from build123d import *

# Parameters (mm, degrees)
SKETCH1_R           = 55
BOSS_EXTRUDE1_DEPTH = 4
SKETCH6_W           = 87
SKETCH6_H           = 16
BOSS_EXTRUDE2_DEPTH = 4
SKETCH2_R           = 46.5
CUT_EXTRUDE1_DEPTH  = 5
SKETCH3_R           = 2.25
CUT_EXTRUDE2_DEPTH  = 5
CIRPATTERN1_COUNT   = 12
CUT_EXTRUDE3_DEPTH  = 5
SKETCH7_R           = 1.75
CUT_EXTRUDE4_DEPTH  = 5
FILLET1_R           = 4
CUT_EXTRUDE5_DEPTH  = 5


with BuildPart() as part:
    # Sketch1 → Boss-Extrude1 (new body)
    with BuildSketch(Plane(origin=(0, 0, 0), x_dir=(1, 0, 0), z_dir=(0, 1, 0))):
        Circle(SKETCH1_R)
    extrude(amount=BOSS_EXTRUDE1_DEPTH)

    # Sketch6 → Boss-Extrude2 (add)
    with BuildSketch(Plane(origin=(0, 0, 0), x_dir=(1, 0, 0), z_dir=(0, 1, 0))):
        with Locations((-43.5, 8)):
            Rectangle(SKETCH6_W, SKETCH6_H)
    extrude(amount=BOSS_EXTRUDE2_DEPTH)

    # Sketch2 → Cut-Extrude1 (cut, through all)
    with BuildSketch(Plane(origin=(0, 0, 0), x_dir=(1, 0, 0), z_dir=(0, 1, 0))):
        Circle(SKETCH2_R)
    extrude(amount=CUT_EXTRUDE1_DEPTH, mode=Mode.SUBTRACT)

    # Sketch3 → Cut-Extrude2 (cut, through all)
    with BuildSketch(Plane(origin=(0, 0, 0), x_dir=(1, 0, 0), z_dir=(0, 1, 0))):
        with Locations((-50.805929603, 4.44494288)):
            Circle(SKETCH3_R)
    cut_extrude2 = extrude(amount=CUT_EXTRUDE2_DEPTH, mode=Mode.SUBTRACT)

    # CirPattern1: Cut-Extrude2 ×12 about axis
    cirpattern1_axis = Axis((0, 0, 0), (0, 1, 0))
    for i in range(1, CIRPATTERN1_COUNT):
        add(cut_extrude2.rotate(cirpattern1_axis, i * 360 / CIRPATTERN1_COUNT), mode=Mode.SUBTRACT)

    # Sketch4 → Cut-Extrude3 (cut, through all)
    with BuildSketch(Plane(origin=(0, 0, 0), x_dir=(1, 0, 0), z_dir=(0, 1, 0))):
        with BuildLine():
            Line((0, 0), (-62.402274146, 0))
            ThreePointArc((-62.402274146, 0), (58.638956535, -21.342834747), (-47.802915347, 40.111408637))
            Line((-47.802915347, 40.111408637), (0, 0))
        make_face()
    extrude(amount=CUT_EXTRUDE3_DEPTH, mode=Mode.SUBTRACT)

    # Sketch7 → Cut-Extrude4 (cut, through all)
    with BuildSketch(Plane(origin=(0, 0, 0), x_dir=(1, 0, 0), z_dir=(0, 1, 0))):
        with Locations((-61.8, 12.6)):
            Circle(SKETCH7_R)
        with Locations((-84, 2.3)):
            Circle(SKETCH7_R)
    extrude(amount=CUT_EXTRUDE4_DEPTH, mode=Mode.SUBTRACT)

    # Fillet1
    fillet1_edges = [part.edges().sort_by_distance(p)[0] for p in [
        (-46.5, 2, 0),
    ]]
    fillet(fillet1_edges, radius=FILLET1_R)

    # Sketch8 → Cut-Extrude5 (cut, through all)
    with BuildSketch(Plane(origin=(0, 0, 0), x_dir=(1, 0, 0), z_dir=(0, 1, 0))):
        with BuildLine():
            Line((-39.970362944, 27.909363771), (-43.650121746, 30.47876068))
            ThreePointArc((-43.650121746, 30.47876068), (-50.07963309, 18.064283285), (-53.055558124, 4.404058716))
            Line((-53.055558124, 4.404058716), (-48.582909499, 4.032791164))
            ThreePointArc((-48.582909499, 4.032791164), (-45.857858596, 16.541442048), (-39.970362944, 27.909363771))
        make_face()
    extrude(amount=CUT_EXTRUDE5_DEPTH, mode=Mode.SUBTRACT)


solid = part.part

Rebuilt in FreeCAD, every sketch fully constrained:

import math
import FreeCAD as App
import Part
import Sketcher

V = App.Vector
Q = App.Units.Quantity


def edges_at(feature, points):
    """Names of the edges that pass closest to the given points."""
    edges = feature.Shape.Edges
    near = lambda p: min(range(len(edges)), key=lambda i: edges[i].distToShape(Part.Vertex(*p))[0])
    return sorted({f"Edge{near(p) + 1}" for p in points})

doc = App.newDocument("Part")
body = doc.addObject("PartDesign::Body", "Body")

sketch1 = doc.addObject("Sketcher::SketchObject", "Sketch")
body.addObject(sketch1)
sketch1.AttachmentSupport = (doc.XZ_Plane, [""])
sketch1.MapMode = "FlatFace"
sketch1.addGeometry(Part.Circle(V(0, 0, 0), V(0, 0, 1), 55), False)
sketch1.addConstraint([
    Sketcher.Constraint("Coincident", 0, 3, -1, 1),
    Sketcher.Constraint("Diameter", 0, 110.0),
])
pad1 = doc.addObject("PartDesign::Pad", "Pad")
body.addObject(pad1)
pad1.Profile = sketch1
pad1.Length = 4
pad1.Reversed = True

sketch2 = doc.addObject("Sketcher::SketchObject", "Sketch001")
body.addObject(sketch2)
sketch2.AttachmentSupport = (doc.XZ_Plane, [""])
sketch2.MapMode = "FlatFace"
sketch2.addGeometry([
    Part.LineSegment(V(-87, -16, 0), V(-87, 0, 0)),
    Part.LineSegment(V(-87, 0, 0), V(0, 0, 0)),
    Part.LineSegment(V(0, 0, 0), V(0, -16, 0)),
    Part.LineSegment(V(0, -16, 0), V(-87, -16, 0)),
], False)
sketch2.addConstraint([
    Sketcher.Constraint("Coincident", 0, 2, 1, 1),
    Sketcher.Constraint("Coincident", 1, 2, 2, 1),
    Sketcher.Constraint("Coincident", 2, 2, 3, 1),
    Sketcher.Constraint("Coincident", 3, 2, 0, 1),
    Sketcher.Constraint("Vertical", 0),
    Sketcher.Constraint("Horizontal", 1),
    Sketcher.Constraint("Vertical", 2),
    Sketcher.Constraint("Horizontal", 3),
    Sketcher.Constraint("Coincident", 1, 2, -1, 1),
    Sketcher.Constraint("DistanceX", 1, 1, 1, 2, 87.0),
    Sketcher.Constraint("DistanceY", 0, 1, 0, 2, 16.0),
])
pad2 = doc.addObject("PartDesign::Pad", "Pad001")
body.addObject(pad2)
pad2.Profile = sketch2
pad2.Length = 4
pad2.Reversed = True

sketch3 = doc.addObject("Sketcher::SketchObject", "Sketch002")
body.addObject(sketch3)
sketch3.AttachmentSupport = (doc.XZ_Plane, [""])
sketch3.MapMode = "FlatFace"
sketch3.addGeometry(Part.Circle(V(0, 0, 0), V(0, 0, 1), 46), False)
sketch3.addConstraint([
    Sketcher.Constraint("Coincident", 0, 3, -1, 1),
    Sketcher.Constraint("Diameter", 0, 93.0),
])
pocket1 = doc.addObject("PartDesign::Pocket", "Pocket")
body.addObject(pocket1)
pocket1.Profile = sketch3
pocket1.Type = "ThroughAll"

sketch4 = doc.addObject("Sketcher::SketchObject", "Sketch003")
body.addObject(sketch4)
sketch4.AttachmentSupport = (doc.XZ_Plane, [""])
sketch4.MapMode = "FlatFace"
sketch4.addGeometry(Part.Circle(V(-50.8, -4.4, 0), V(0, 0, 1), 2.2), False)
sketch4.addConstraint([
    Sketcher.Constraint("Diameter", 0, 4.5),
    Sketcher.Constraint("DistanceX", 0, 3, -1, 1, 50.80593),
    Sketcher.Constraint("DistanceY", 0, 3, -1, 1, 4.444943),
])
pocket2 = doc.addObject("PartDesign::Pocket", "Pocket001")
body.addObject(pocket2)
pocket2.Profile = sketch4
pocket2.Type = "ThroughAll"
doc.recompute()

polarpattern = doc.addObject("PartDesign::PolarPattern", "PolarPattern")
body.addObject(polarpattern)
polarpattern.Originals = [pocket2]
polarpattern.Axis = (doc.Y_Axis, [""])
polarpattern.Angle = 360
polarpattern.Occurrences = 12
body.Tip = polarpattern

sketch5 = doc.addObject("Sketcher::SketchObject", "Sketch004")
body.addObject(sketch5)
sketch5.AttachmentSupport = (doc.XZ_Plane, [""])
sketch5.MapMode = "FlatFace"
sketch5.addGeometry([
    Part.LineSegment(V(0, 0, 0), V(-62, 0, 0)),
    Part.ArcOfCircle(Part.Circle(V(0, 0, 0), V(0, 0, 1), 62), math.radians(-140), math.radians(180)),
    Part.LineSegment(V(-48, -40, 0), V(0, 0, 0)),
], False)
sketch5.addConstraint([
    Sketcher.Constraint("Coincident", 0, 2, 1, 2),
    Sketcher.Constraint("Coincident", 1, 1, 2, 1),
    Sketcher.Constraint("Coincident", 2, 2, 0, 1),
    Sketcher.Constraint("Horizontal", 0),
    Sketcher.Constraint("Coincident", 1, 3, -1, 1),
    Sketcher.Constraint("Coincident", 2, 2, -1, 1),
    Sketcher.Constraint("Angle", 2, Q("40 deg")),
    Sketcher.Constraint("Radius", 1, 62.402274),
])
pocket3 = doc.addObject("PartDesign::Pocket", "Pocket002")
body.addObject(pocket3)
pocket3.Profile = sketch5
pocket3.Type = "ThroughAll"

sketch6 = doc.addObject("Sketcher::SketchObject", "Sketch005")
body.addObject(sketch6)
sketch6.AttachmentSupport = (doc.XZ_Plane, [""])
sketch6.MapMode = "FlatFace"
sketch6.addGeometry([
    Part.Circle(V(-61.8, -12.6, 0), V(0, 0, 1), 1.8),
    Part.Circle(V(-84, -2.3, 0), V(0, 0, 1), 1.8),
], False)
sketch6.addConstraint([
    Sketcher.Constraint("Equal", 0, 1),
    Sketcher.Constraint("Diameter", 0, 3.5),
    Sketcher.Constraint("DistanceX", 1, 3, -1, 1, 84.0),
    Sketcher.Constraint("DistanceX", 0, 3, -1, 1, 61.8),
    Sketcher.Constraint("DistanceY", 0, 3, -1, 1, 12.6),
    Sketcher.Constraint("DistanceY", 1, 3, -1, 1, 2.3),
])
pocket4 = doc.addObject("PartDesign::Pocket", "Pocket003")
body.addObject(pocket4)
pocket4.Profile = sketch6
pocket4.Type = "ThroughAll"
doc.recompute()

fillet = doc.addObject("PartDesign::Fillet", "Fillet")
body.addObject(fillet)
fillet.Base = (pocket4, edges_at(pocket4, [(-46.5, 2, 0)]))
fillet.Radius = 4

sketch7 = doc.addObject("Sketcher::SketchObject", "Sketch006")
body.addObject(sketch7)
sketch7.AttachmentSupport = (doc.XZ_Plane, [""])
sketch7.MapMode = "FlatFace"
sketch7.addGeometry([
    Part.LineSegment(V(-40, -27.9, 0), V(-43.7, -30.5, 0)),
    Part.ArcOfCircle(Part.Circle(V(0, 0, 0), V(0, 0, 1), 53.2), math.radians(-175), math.radians(-145)),
    Part.LineSegment(V(-53.1, -4.4, 0), V(-48.6, -4, 0)),
    Part.ArcOfCircle(Part.Circle(V(0, 0, 0), V(0, 0, 1), 48.7), math.radians(-175), math.radians(-145)),
], False)
sketch7.addConstraint([
    Sketcher.Constraint("Coincident", 0, 2, 1, 2),
    Sketcher.Constraint("Coincident", 1, 1, 2, 1),
    Sketcher.Constraint("Coincident", 2, 2, 3, 1),
    Sketcher.Constraint("Coincident", 3, 2, 0, 1),
    Sketcher.Constraint("Coincident", 1, 3, -1, 1),
    Sketcher.Constraint("Coincident", 3, 3, -1, 1),
    Sketcher.Constraint("Radius", 3, 48.75),
    Sketcher.Constraint("Radius", 1, 53.238031),
    Sketcher.Constraint("DistanceY", 0, 2, 1, 1, 26.074702),
    Sketcher.Constraint("DistanceX", 0, 2, -1, 1, 43.650122),
    Sketcher.Constraint("DistanceX", 2, 2, -1, 1, 48.582909),
    Sketcher.Constraint("DistanceX", 0, 2, 3, 2, 3.679759),
])
pocket5 = doc.addObject("PartDesign::Pocket", "Pocket004")
body.addObject(pocket5)
pocket5.Profile = sketch7
pocket5.Type = "ThroughAll"

doc.recompute()
